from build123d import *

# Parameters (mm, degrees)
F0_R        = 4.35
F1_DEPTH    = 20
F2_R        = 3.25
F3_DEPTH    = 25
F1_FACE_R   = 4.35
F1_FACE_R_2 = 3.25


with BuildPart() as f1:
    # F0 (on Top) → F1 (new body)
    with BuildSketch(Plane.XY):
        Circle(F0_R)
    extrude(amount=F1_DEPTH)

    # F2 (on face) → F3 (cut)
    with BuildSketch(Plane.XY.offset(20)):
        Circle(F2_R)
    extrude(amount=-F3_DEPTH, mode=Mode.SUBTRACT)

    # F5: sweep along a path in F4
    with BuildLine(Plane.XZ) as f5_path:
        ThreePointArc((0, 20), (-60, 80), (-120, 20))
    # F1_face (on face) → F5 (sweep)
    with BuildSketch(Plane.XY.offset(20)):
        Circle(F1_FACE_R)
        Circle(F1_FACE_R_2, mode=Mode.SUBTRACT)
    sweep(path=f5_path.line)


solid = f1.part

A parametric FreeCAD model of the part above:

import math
import FreeCAD as App
import Part
import Sketcher

V = App.Vector

doc = App.newDocument("Part")
body = doc.addObject("PartDesign::Body", "Body")

# Sketch on XY plane
sketch1 = body.newObject("Sketcher::SketchObject", "Sketch")
sketch1.AttachmentSupport = (doc.getObject("XY_Plane"), [""])
sketch1.MapMode = "FlatFace"
sketch1.addGeometry(Part.Circle(V(0, 0, 0), V(0, 0, 1), 4.3), False)
sketch1.addConstraint([
    Sketcher.Constraint("Coincident", 0, 3, -1, 1),
    Sketcher.Constraint("Diameter", 0, 8.7),
])
pad1 = body.newObject("PartDesign::Pad", "Pad")
pad1.Profile = sketch1
pad1.Length = 20

# Sketch on XY plane
sketch2 = body.newObject("Sketcher::SketchObject", "Sketch001")
sketch2.AttachmentSupport = (doc.getObject("XY_Plane"), [""])
sketch2.MapMode = "FlatFace"
sketch2.AttachmentOffset = App.Placement(V(0, 0, 20), App.Rotation())
sketch2.addGeometry(Part.Circle(V(0, 0, 0), V(0, 0, 1), 3.2), False)
sketch2.addConstraint([
    Sketcher.Constraint("Coincident", 0, 3, -1, 1),
    Sketcher.Constraint("Diameter", 0, 6.5),
])
pocket1 = body.newObject("PartDesign::Pocket", "Pocket")
pocket1.Profile = sketch2
pocket1.Length = 25

# Sketch on XY plane
sketch3 = body.newObject("Sketcher::SketchObject", "Sketch002")
sketch3.AttachmentSupport = (doc.getObject("XY_Plane"), [""])
sketch3.MapMode = "FlatFace"
sketch3.AttachmentOffset = App.Placement(V(0, 0, 20), App.Rotation())
sketch3.addGeometry([
    Part.Circle(V(0, 0, 0), V(0, 0, 1), 4.3),
    Part.Circle(V(0, 0, 0), V(0, 0, 1), 3.2),
], False)
sketch3.addConstraint([
    Sketcher.Constraint("Coincident", 0, 3, -1, 1),
    Sketcher.Constraint("Coincident", 1, 3, -1, 1),
    Sketcher.Constraint("Diameter", 0, 8.7),
    Sketcher.Constraint("Diameter", 1, 6.5),
])

# Sketch on XZ plane
sketch4 = body.newObject("Sketcher::SketchObject", "Sketch003")
sketch4.AttachmentSupport = (doc.getObject("XZ_Plane"), [""])
sketch4.MapMode = "FlatFace"
sketch4.addGeometry(Part.ArcOfCircle(Part.Circle(V(-60, 20, 0), V(0, 0, 1), 60), math.radians(0), math.radians(180)), False)
sketch4.addConstraint([
    Sketcher.Constraint("PointOnObject", 0, 1, -2),
    Sketcher.Constraint("Radius", 0, 60.0),
    Sketcher.Constraint("DistanceY", -1, 1, 0, 3, 20.0),
    Sketcher.Constraint("DistanceY", -1, 1, 0, 1, 20.0),
    Sketcher.Constraint("DistanceY", -1, 1, 0, 2, 20.0),
])
doc.recompute()

additivepipe = body.newObject("PartDesign::AdditivePipe", "AdditivePipe")
additivepipe.Profile = sketch3
additivepipe.Spine = (sketch4, ["Edge1"])

doc.recompute()
